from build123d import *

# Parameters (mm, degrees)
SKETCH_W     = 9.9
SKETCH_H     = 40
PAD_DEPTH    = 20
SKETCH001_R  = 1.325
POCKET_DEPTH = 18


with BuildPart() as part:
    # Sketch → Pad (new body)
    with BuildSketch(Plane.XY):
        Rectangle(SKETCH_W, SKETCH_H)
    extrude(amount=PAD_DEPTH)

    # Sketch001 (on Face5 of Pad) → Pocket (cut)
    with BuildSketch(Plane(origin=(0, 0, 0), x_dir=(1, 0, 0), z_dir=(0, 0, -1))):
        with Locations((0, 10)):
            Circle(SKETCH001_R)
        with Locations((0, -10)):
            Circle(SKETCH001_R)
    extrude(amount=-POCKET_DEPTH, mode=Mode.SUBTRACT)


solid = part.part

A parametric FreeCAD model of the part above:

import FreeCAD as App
import Part
import Sketcher
from FreeCAD import Vector
Q = App.Units.Quantity

doc = App.newDocument("Part")
body = doc.addObject("PartDesign::Body", "Body")

sketch1 = doc.addObject("Sketcher::SketchObject", "Sketch")
body.addObject(sketch1)
sketch1.AttachmentSupport = (doc.XY_Plane, [""])
sketch1.MapMode = "FlatFace"
sketch1.addGeometry(Part.LineSegment(Vector(-5, 20, 0), Vector(-5, -20, 0)), False)
sketch1.addGeometry(Part.LineSegment(Vector(-5, -20, 0), Vector(5, -20, 0)), False)
sketch1.addGeometry(Part.LineSegment(Vector(5, -20, 0), Vector(5, 20, 0)), False)
sketch1.addGeometry(Part.LineSegment(Vector(5, 20, 0), Vector(-5, 20, 0)), False)
sketch1.addConstraint(Sketcher.Constraint("Coincident", 0, 2, 1, 1))
sketch1.addConstraint(Sketcher.Constraint("Coincident", 1, 2, 2, 1))
sketch1.addConstraint(Sketcher.Constraint("Coincident", 2, 2, 3, 1))
sketch1.addConstraint(Sketcher.Constraint("Coincident", 3, 2, 0, 1))
sketch1.addConstraint(Sketcher.Constraint("Vertical", 0))
sketch1.addConstraint(Sketcher.Constraint("Horizontal", 1))
sketch1.addConstraint(Sketcher.Constraint("Vertical", 2))
sketch1.addConstraint(Sketcher.Constraint("Horizontal", 3))
sketch1.addConstraint(Sketcher.Constraint("Symmetric", 0, 2, 2, 2, -1, 1))
sketch1.addConstraint(Sketcher.Constraint("DistanceY", 0, 2, 0, 1, Q("40 mm")))
sketch1.addConstraint(Sketcher.Constraint("DistanceX", 1, 1, 1, 2, Q("9.9 mm")))
pad1 = doc.addObject("PartDesign::Pad", "Pad")
body.addObject(pad1)
pad1.Profile = sketch1
pad1.Length = 20

sketch2 = doc.addObject("Sketcher::SketchObject", "Sketch001")
body.addObject(sketch2)
sketch2.AttachmentSupport = (doc.XY_Plane, [""])
sketch2.MapMode = "FlatFace"
sketch2.addGeometry(Part.Circle(Vector(0, -10, 0), Vector(0, 0, 1), 1.3), False)
sketch2.addGeometry(Part.Circle(Vector(0, 10, 0), Vector(0, 0, 1), 1.3), False)
sketch2.addConstraint(Sketcher.Constraint("Equal", 0, 1))
sketch2.addConstraint(Sketcher.Constraint("Symmetric", 0, 3, 1, 3, -1, 1))
sketch2.addConstraint(Sketcher.Constraint("PointOnObject", 0, 3, -2))
sketch2.addConstraint(Sketcher.Constraint("Diameter", 0, Q("2.65 mm")))
sketch2.addConstraint(Sketcher.Constraint("DistanceY", 0, 3, -1, 1, Q("10 mm")))
pocket1 = doc.addObject("PartDesign::Pocket", "Pocket")
body.addObject(pocket1)
pocket1.Profile = sketch2
pocket1.Length = 18
pocket1.Reversed = True

doc.recompute()
